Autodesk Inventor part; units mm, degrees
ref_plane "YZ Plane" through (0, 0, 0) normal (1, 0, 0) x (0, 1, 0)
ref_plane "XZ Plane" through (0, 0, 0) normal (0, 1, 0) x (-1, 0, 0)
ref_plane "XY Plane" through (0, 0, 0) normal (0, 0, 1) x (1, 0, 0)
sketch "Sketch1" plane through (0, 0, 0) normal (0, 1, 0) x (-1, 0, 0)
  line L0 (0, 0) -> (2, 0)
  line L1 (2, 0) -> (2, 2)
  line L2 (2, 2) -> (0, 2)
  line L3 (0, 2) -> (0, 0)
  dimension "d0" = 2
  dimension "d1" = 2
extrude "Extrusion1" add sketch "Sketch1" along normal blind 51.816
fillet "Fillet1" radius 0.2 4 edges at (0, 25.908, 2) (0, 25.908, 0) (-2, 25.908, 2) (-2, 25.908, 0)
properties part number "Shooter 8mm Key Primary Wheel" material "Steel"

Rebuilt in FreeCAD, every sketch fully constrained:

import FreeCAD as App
import Part
import Sketcher
from FreeCAD import Vector


def edges_at(feature, points):
    """Names of the edges that pass closest to the given points."""
    edges = feature.Shape.Edges
    near = lambda p: min(range(len(edges)), key=lambda i: edges[i].distToShape(Part.Vertex(*p))[0])
    return sorted({f"Edge{near(p) + 1}" for p in points})


def add_polygon(sketch, points):
    """Adds a closed chain of lines whose ends are joined by coincident constraints."""
    first, n = sketch.GeometryCount, len(points)
    for a, b in zip(points, points[1:] + points[:1]):
        sketch.addGeometry(Part.LineSegment(App.Vector(*a, 0), App.Vector(*b, 0)), False)
    for i in range(n):
        sketch.addConstraint(Sketcher.Constraint("Coincident", first + i, 2, first + (i + 1) % n, 1))

doc = App.newDocument("Part")
body = doc.addObject("PartDesign::Body", "Body")

# Sketch on XZ plane
sketch1 = body.newObject("Sketcher::SketchObject", "Sketch")
sketch1.AttachmentSupport = (doc.getObject("XZ_Plane"), [""])
sketch1.MapMode = "FlatFace"
add_polygon(sketch1, [(0, 2), (0, 0), (-2, 0), (-2, 2)])  # lines 0-3
sketch1.addConstraint(Sketcher.Constraint("Vertical", 0))
sketch1.addConstraint(Sketcher.Constraint("Horizontal", 1))
sketch1.addConstraint(Sketcher.Constraint("Vertical", 2))
sketch1.addConstraint(Sketcher.Constraint("Horizontal", 3))
sketch1.addConstraint(Sketcher.Constraint("Coincident", 0, 2, -1, 1))
sketch1.addConstraint(Sketcher.Constraint("Equal", 3, 0))
sketch1.addConstraint(Sketcher.Constraint("DistanceX", 1, 2, 1, 1, 2.0))
pad1 = body.newObject("PartDesign::Pad", "Pad")
pad1.Profile = sketch1
pad1.Length = 51.816
pad1.Reversed = True
doc.recompute()

fillet = body.newObject("PartDesign::Fillet", "Fillet")
fillet.Base = (pad1, edges_at(pad1, [
    (0, 25.908, 2),
    (0, 25.908, 0),
    (-2, 25.908, 2),
    (-2, 25.908, 0),
]))
fillet.Radius = 0.2

doc.recompute()
